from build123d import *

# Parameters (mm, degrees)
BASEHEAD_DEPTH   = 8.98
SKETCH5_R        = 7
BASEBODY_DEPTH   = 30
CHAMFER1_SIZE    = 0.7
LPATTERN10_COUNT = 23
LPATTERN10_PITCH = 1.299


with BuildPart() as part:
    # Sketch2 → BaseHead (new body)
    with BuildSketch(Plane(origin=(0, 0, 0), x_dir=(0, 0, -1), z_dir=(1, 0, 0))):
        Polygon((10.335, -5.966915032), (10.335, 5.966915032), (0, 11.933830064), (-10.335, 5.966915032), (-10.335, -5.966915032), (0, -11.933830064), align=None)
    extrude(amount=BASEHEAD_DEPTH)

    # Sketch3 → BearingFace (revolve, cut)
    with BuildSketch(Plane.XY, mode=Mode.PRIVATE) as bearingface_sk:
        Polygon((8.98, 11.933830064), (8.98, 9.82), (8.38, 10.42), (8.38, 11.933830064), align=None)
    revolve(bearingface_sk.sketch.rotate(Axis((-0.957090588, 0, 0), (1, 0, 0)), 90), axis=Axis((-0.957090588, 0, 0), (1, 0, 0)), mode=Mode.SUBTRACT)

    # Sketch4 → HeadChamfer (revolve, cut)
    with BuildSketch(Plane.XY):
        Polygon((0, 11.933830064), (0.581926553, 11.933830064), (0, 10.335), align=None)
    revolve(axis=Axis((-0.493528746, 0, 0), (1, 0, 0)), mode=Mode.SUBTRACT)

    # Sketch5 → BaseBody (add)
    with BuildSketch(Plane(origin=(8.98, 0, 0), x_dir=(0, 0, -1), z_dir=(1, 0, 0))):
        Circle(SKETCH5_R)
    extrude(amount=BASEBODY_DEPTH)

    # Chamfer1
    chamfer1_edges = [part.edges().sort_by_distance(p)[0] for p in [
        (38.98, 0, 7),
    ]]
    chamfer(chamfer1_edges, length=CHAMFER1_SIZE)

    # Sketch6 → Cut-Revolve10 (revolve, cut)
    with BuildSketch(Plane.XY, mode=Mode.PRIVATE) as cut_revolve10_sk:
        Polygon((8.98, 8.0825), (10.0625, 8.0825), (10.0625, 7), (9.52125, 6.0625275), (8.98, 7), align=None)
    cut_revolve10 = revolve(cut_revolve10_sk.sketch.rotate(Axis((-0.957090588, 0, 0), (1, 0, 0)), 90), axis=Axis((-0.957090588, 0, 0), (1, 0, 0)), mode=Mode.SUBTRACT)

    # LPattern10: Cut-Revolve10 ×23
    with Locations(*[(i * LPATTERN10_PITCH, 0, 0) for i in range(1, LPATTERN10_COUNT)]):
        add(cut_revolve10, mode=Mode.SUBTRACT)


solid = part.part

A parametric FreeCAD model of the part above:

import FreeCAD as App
import Part
import Sketcher

V = App.Vector
Q = App.Units.Quantity


def edges_at(feature, points):
    """Names of the edges that pass closest to the given points."""
    edges = feature.Shape.Edges
    near = lambda p: min(range(len(edges)), key=lambda i: edges[i].distToShape(Part.Vertex(*p))[0])
    return sorted({f"Edge{near(p) + 1}" for p in points})

doc = App.newDocument("Part")
body = doc.addObject("PartDesign::Body", "Body")

sketch1 = body.newObject("Sketcher::SketchObject", "Sketch")
sketch1.AttachmentSupport = (doc.getObject("YZ_Plane"), [""])
sketch1.MapMode = "FlatFace"
sketch1.addGeometry([
    Part.LineSegment(V(-6, -10, 0), V(6, -10, 0)),
    Part.LineSegment(V(6, -10, 0), V(12, 0, 0)),
    Part.LineSegment(V(12, 0, 0), V(6, 10, 0)),
    Part.LineSegment(V(6, 10, 0), V(-6, 10, 0)),
    Part.LineSegment(V(-6, 10, 0), V(-12, 0, 0)),
    Part.LineSegment(V(-12, 0, 0), V(-6, -10, 0)),
], False)
sketch1.addConstraint([
    Sketcher.Constraint("Coincident", 0, 2, 1, 1),
    Sketcher.Constraint("Coincident", 1, 2, 2, 1),
    Sketcher.Constraint("Coincident", 2, 2, 3, 1),
    Sketcher.Constraint("Coincident", 3, 2, 4, 1),
    Sketcher.Constraint("Coincident", 4, 2, 5, 1),
    Sketcher.Constraint("Coincident", 5, 2, 0, 1),
    Sketcher.Constraint("Horizontal", 0),
    Sketcher.Constraint("Horizontal", 3),
    Sketcher.Constraint("Symmetric", 0, 2, 3, 2, -1, 1),
    Sketcher.Constraint("Symmetric", 1, 2, 4, 2, -1, 1),
    Sketcher.Constraint("PointOnObject", 1, 2, -1),
    Sketcher.Constraint("Parallel", 2, 5),
    Sketcher.Constraint("Vertical", 0, 2, 2, 2),
    Sketcher.Constraint("Angle", 1, Q("60 deg")),
    Sketcher.Constraint("DistanceY", 0, 2, 2, 2, Q("20.67 mm")),
    Sketcher.Constraint("DistanceX", 0, 1, 0, 2, Q("11.93383 mm")),
])
pad1 = body.newObject("PartDesign::Pad", "Pad")
pad1.Profile = sketch1
pad1.Length = 8.98

sketch2 = body.newObject("Sketcher::SketchObject", "Sketch001")
sketch2.AttachmentSupport = (doc.getObject("XY_Plane"), [""])
sketch2.MapMode = "FlatFace"
sketch2.addGeometry([
    Part.LineSegment(V(9, 9.8, 0), V(9, 11.9, 0)),
    Part.LineSegment(V(9, 11.9, 0), V(8.4, 11.9, 0)),
    Part.LineSegment(V(8.4, 11.9, 0), V(8.4, 10.4, 0)),
    Part.LineSegment(V(8.4, 10.4, 0), V(9, 9.8, 0)),
], False)
sketch2.addConstraint([
    Sketcher.Constraint("Coincident", 0, 2, 1, 1),
    Sketcher.Constraint("Coincident", 1, 2, 2, 1),
    Sketcher.Constraint("Coincident", 2, 2, 3, 1),
    Sketcher.Constraint("Coincident", 3, 2, 0, 1),
    Sketcher.Constraint("Vertical", 0),
    Sketcher.Constraint("Horizontal", 1),
    Sketcher.Constraint("Vertical", 2),
    Sketcher.Constraint("Angle", 3, Q("-45 deg")),
    Sketcher.Constraint("DistanceX", 1, 2, 1, 1, Q("0.6 mm")),
    Sketcher.Constraint("DistanceX", -1, 1, 0, 2, Q("8.98 mm")),
    Sketcher.Constraint("DistanceY", -1, 1, 2, 2, Q("10.42 mm")),
    Sketcher.Constraint("DistanceY", 0, 1, 0, 2, Q("2.11383 mm")),
])
groove = body.newObject("PartDesign::Groove", "Groove")
groove.Profile = sketch2
groove.ReferenceAxis = (sketch2, ["H_Axis"])
groove.Angle = 360

sketch3 = body.newObject("Sketcher::SketchObject", "Sketch002")
sketch3.AttachmentSupport = (doc.getObject("XY_Plane"), [""])
sketch3.MapMode = "FlatFace"
sketch3.addGeometry([
    Part.LineSegment(V(0.6, 11.9, 0), V(0, 11.9, 0)),
    Part.LineSegment(V(0, 11.9, 0), V(0, 10.3, 0)),
    Part.LineSegment(V(0, 10.3, 0), V(0.6, 11.9, 0)),
], False)
sketch3.addConstraint([
    Sketcher.Constraint("Coincident", 0, 2, 1, 1),
    Sketcher.Constraint("Coincident", 1, 2, 2, 1),
    Sketcher.Constraint("Coincident", 2, 2, 0, 1),
    Sketcher.Constraint("Horizontal", 0),
    Sketcher.Constraint("Vertical", 1),
    Sketcher.Constraint("PointOnObject", 0, 2, -2),
    Sketcher.Constraint("Angle", 2, Q("70 deg")),
    Sketcher.Constraint("DistanceY", -1, 1, 1, 2, Q("10.335 mm")),
    Sketcher.Constraint("DistanceY", 1, 2, 1, 1, Q("1.59883 mm")),
])
groove2 = body.newObject("PartDesign::Groove", "Groove001")
groove2.Profile = sketch3
groove2.ReferenceAxis = (sketch3, ["H_Axis"])
groove2.Angle = 360

sketch4 = body.newObject("Sketcher::SketchObject", "Sketch003")
sketch4.AttachmentSupport = (doc.getObject("YZ_Plane"), [""])
sketch4.MapMode = "FlatFace"
sketch4.AttachmentOffset = App.Placement(V(0, 0, 8.98), App.Rotation())
sketch4.addGeometry(Part.Circle(V(0, 0, 0), V(0, 0, 1), 7), False)
sketch4.addConstraint([
    Sketcher.Constraint("Coincident", 0, 3, -1, 1),
    Sketcher.Constraint("Diameter", 0, Q("14 mm")),
])
pad2 = body.newObject("PartDesign::Pad", "Pad001")
pad2.Profile = sketch4
pad2.Length = 30
doc.recompute()

chamfer = body.newObject("PartDesign::Chamfer", "Chamfer")
chamfer.Base = (pad2, edges_at(pad2, [(38.98, 0, 7)]))
chamfer.Size = 0.7

sketch5 = body.newObject("Sketcher::SketchObject", "Sketch004")
sketch5.AttachmentSupport = (doc.getObject("XY_Plane"), [""])
sketch5.MapMode = "FlatFace"
sketch5.addGeometry([
    Part.LineSegment(V(10.1, 8.1, 0), V(9, 8.1, 0)),
    Part.LineSegment(V(9, 8.1, 0), V(9, 7, 0)),
    Part.LineSegment(V(9, 7, 0), V(9.5, 6.1, 0)),
    Part.LineSegment(V(9.5, 6.1, 0), V(10.1, 7, 0)),
    Part.LineSegment(V(10.1, 7, 0), V(10.1, 8.1, 0)),
], False)
sketch5.addConstraint([
    Sketcher.Constraint("Coincident", 0, 2, 1, 1),
    Sketcher.Constraint("Coincident", 1, 2, 2, 1),
    Sketcher.Constraint("Coincident", 2, 2, 3, 1),
    Sketcher.Constraint("Coincident", 3, 2, 4, 1),
    Sketcher.Constraint("Coincident", 4, 2, 0, 1),
    Sketcher.Constraint("Horizontal", 0),
    Sketcher.Constraint("Vertical", 1),
    Sketcher.Constraint("Vertical", 4),
    Sketcher.Constraint("Horizontal", 1, 2, 3, 2),
    Sketcher.Constraint("Equal", 0, 1),
    Sketcher.Constraint("Equal", 2, 3),
    Sketcher.Constraint("Angle", 2, Q("-60 deg")),
    Sketcher.Constraint("DistanceY", -1, 1, 1, 2, Q("7 mm")),
    Sketcher.Constraint("DistanceX", -1, 1, 0, 2, Q("8.98 mm")),
    Sketcher.Constraint("DistanceX", 0, 2, 0, 1, Q("1.0825 mm")),
])
groove3 = body.newObject("PartDesign::Groove", "Groove002")
groove3.Profile = sketch5
groove3.ReferenceAxis = (sketch5, ["H_Axis"])
groove3.Angle = 360
doc.recompute()

linearpattern = body.newObject("PartDesign::LinearPattern", "LinearPattern")
linearpattern.Originals = [groove3]
linearpattern.Direction = (doc.getObject("X_Axis"), [""])
linearpattern.Mode = "offset"
linearpattern.Offset = 1.299
linearpattern.Occurrences = 23
body.Tip = linearpattern

doc.recompute()
